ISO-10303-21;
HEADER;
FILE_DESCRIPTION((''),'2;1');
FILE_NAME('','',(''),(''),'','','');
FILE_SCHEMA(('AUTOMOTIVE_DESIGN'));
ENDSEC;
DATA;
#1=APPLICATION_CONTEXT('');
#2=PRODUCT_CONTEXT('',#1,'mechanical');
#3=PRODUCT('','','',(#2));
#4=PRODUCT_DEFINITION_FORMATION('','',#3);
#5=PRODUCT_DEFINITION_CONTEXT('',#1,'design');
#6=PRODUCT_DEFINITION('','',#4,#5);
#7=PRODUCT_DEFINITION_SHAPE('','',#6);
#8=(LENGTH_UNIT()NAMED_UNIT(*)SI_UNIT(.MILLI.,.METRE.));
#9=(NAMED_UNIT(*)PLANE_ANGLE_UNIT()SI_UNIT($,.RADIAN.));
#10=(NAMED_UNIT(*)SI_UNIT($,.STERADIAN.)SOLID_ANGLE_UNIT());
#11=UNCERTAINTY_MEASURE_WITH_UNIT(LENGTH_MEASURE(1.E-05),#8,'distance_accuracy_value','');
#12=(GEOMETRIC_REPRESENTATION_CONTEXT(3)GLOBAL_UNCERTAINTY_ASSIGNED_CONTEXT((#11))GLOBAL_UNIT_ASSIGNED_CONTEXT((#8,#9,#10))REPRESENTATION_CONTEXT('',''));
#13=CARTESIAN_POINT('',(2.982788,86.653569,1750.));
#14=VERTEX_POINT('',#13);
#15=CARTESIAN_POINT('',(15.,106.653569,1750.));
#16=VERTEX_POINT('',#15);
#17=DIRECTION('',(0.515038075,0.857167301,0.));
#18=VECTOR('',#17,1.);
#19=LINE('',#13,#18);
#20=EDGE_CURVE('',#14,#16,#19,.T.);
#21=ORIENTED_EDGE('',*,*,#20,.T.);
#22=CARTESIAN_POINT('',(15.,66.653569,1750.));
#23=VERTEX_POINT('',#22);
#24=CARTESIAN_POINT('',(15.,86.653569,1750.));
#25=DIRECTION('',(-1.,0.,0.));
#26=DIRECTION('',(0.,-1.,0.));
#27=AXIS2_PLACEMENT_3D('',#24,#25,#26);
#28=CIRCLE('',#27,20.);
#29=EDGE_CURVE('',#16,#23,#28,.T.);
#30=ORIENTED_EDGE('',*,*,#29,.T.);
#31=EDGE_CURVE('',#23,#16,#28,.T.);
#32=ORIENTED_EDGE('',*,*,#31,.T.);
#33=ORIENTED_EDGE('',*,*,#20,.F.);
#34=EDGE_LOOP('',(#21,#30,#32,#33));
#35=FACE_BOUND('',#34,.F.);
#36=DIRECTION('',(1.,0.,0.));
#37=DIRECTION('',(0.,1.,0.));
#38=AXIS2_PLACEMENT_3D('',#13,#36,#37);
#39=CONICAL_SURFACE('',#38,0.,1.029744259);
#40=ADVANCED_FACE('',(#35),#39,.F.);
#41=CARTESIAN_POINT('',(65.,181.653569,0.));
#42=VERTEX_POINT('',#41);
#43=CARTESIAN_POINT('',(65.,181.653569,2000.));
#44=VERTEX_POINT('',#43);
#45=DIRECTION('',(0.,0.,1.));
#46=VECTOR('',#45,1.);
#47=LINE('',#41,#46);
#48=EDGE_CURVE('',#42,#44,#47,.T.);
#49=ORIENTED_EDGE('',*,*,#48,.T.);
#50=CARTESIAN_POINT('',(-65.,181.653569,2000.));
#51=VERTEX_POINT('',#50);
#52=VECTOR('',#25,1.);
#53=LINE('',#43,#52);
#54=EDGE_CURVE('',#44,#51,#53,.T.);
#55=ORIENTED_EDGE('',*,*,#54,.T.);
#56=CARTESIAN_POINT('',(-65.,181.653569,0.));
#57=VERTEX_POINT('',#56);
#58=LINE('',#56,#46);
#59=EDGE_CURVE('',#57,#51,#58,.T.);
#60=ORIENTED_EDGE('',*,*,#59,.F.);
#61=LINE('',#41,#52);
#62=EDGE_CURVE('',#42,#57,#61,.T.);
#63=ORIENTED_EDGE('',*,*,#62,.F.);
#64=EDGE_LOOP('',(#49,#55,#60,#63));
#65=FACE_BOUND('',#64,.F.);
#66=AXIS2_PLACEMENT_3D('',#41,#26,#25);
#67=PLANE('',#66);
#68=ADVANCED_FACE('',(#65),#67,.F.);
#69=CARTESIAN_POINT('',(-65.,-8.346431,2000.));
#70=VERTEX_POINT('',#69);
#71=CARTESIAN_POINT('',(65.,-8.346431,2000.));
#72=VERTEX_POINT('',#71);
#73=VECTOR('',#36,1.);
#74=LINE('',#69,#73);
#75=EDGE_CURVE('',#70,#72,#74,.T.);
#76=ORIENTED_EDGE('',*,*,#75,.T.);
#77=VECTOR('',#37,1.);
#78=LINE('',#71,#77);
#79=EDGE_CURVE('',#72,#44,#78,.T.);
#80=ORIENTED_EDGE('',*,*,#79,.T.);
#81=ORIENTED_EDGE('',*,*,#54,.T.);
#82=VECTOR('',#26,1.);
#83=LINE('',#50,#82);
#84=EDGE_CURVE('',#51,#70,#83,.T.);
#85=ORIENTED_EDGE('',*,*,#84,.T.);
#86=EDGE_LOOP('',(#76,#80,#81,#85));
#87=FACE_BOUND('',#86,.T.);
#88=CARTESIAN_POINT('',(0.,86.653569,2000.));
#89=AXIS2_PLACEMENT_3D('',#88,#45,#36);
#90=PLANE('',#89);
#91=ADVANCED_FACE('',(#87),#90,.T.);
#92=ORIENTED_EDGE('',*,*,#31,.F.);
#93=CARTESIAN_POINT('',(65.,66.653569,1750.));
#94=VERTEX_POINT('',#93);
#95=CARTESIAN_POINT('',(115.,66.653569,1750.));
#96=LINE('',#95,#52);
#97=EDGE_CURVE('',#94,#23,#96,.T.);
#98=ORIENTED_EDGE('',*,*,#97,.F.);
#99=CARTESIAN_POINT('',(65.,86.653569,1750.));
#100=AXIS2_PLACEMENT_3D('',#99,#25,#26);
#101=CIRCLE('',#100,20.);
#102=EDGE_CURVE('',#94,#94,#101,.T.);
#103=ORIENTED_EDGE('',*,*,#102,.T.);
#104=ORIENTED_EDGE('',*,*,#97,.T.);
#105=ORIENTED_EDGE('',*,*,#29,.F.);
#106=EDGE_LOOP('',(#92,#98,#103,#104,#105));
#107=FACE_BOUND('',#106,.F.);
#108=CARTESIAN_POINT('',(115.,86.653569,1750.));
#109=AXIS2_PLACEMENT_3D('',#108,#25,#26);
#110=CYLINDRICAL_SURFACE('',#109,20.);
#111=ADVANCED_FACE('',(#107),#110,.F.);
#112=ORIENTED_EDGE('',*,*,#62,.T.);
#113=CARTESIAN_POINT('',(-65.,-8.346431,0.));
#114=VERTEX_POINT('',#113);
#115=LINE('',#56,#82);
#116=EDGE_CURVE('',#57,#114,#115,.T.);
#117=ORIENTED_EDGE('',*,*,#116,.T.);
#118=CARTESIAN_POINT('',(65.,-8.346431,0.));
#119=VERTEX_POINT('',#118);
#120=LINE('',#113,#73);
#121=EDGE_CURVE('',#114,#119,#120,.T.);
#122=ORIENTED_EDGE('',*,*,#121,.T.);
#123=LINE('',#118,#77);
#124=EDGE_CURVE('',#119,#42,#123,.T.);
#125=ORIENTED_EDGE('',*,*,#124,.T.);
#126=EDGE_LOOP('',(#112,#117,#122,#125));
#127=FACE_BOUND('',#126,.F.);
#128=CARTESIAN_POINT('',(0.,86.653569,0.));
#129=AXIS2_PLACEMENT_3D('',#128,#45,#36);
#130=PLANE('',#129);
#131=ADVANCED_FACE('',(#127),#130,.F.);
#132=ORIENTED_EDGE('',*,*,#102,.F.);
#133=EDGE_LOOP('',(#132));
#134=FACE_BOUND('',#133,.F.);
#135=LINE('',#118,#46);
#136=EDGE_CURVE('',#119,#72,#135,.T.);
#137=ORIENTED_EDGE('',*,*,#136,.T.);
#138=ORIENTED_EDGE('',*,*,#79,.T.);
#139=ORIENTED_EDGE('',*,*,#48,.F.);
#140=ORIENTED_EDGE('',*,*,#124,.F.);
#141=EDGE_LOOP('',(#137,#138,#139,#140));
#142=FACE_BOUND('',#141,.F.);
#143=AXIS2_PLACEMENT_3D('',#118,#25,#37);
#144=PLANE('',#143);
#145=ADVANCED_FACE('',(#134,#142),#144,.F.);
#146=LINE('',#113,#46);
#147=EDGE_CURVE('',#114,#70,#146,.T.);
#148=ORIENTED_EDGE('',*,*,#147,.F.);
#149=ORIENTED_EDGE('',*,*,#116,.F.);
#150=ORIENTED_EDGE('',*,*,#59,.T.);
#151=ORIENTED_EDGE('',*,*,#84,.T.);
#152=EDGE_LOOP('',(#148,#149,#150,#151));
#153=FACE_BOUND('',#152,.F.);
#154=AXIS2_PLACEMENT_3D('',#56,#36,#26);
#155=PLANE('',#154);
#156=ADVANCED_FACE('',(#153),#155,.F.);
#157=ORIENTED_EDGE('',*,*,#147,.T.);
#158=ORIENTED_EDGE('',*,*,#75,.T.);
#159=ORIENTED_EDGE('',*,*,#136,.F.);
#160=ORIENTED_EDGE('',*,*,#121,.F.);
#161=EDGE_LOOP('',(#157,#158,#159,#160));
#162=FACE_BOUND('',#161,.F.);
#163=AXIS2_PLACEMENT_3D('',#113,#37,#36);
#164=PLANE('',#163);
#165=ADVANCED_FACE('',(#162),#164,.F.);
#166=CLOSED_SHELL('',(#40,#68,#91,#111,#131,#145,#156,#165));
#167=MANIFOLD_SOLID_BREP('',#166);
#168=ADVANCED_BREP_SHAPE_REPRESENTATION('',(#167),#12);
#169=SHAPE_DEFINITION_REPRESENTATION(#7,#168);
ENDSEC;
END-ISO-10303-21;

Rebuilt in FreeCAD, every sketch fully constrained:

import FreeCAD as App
import Part
import Sketcher
Q = App.Units.Quantity

doc = App.newDocument("Part")
params = doc.addObject("Spreadsheet::Sheet", "Params")
for row, (alias, value) in enumerate([
    ("sketch1_width", "130 mm"),
    ("sketch1_height", "190 mm"),
    ("pad1_length", "2000 mm"),
    ("sketch2_diameter", "40 mm"),
    ("hole_diameter", "40 mm"),
    ("hole_depth", "50 mm"),
], start=1):
    params.set(f"A{row}", alias)
    params.set(f"B{row}", "=" + value)
    params.setAlias(f"B{row}", alias)

body = doc.addObject("PartDesign::Body", "Body")

# Sketch on XY plane
sketch1 = doc.addObject("Sketcher::SketchObject", "Sketch")
body.addObject(sketch1)
sketch1.AttachmentSupport = (doc.XY_Plane, [""])
sketch1.MapMode = "FlatFace"
sketch1.addGeometry(Part.LineSegment(App.Vector(-65, 182, 0), App.Vector(-65, -8, 0)), False)
sketch1.addGeometry(Part.LineSegment(App.Vector(-65, -8, 0), App.Vector(65, -8, 0)), False)
sketch1.addGeometry(Part.LineSegment(App.Vector(65, -8, 0), App.Vector(65, 182, 0)), False)
sketch1.addGeometry(Part.LineSegment(App.Vector(65, 182, 0), App.Vector(-65, 182, 0)), False)
sketch1.addConstraint(Sketcher.Constraint("Coincident", 0, 2, 1, 1))
sketch1.addConstraint(Sketcher.Constraint("Coincident", 1, 2, 2, 1))
sketch1.addConstraint(Sketcher.Constraint("Coincident", 2, 2, 3, 1))
sketch1.addConstraint(Sketcher.Constraint("Coincident", 3, 2, 0, 1))
sketch1.addConstraint(Sketcher.Constraint("Vertical", 0))
sketch1.addConstraint(Sketcher.Constraint("Horizontal", 1))
sketch1.addConstraint(Sketcher.Constraint("Vertical", 2))
sketch1.addConstraint(Sketcher.Constraint("Horizontal", 3))
sketch1.addConstraint(Sketcher.Constraint("DistanceX", 1, 1, 1, 2, Q("130 mm")))
sketch1.addConstraint(Sketcher.Constraint("DistanceY", 0, 2, 0, 1, Q("190 mm")))
sketch1.addConstraint(Sketcher.Constraint("DistanceX", 0, 2, -1, 1, Q("65 mm")))
sketch1.addConstraint(Sketcher.Constraint("DistanceY", 0, 2, -1, 1, Q("8.346431 mm")))
sketch1.setExpression("Constraints[8]", "Params.sketch1_width")
sketch1.setExpression("Constraints[9]", "Params.sketch1_height")
pad1 = doc.addObject("PartDesign::Pad", "Pad")
body.addObject(pad1)
pad1.Profile = sketch1
pad1.setExpression("Length", "Params.pad1_length")

# Sketch on YZ plane
sketch2 = doc.addObject("Sketcher::SketchObject", "Sketch001")
body.addObject(sketch2)
sketch2.AttachmentSupport = (doc.YZ_Plane, [""])
sketch2.MapMode = "FlatFace"
sketch2.AttachmentOffset = App.Placement(App.Vector(0, 0, 65), App.Rotation())
sketch2.addGeometry(Part.Circle(App.Vector(87, 1750, 0), App.Vector(0, 0, 1), 20), False)
sketch2.addConstraint(Sketcher.Constraint("Diameter", 0, Q("40 mm")))
sketch2.addConstraint(Sketcher.Constraint("DistanceY", -1, 1, 0, 3, Q("1750 mm")))
sketch2.addConstraint(Sketcher.Constraint("DistanceX", -1, 1, 0, 3, Q("86.653569 mm")))
sketch2.setExpression("Constraints[0]", "Params.sketch2_diameter")
doc.recompute()
hole = doc.addObject("PartDesign::Hole", "Hole")
body.addObject(hole)
hole.Profile = sketch2
hole.ThreadType = "None"
hole.setExpression("Diameter", "Params.hole_diameter")
hole.DepthType = "Dimension"
hole.setExpression("Depth", "Params.hole_depth")
hole.DrillPoint = "Angled"
hole.DrillPointAngle = 118

doc.recompute()
